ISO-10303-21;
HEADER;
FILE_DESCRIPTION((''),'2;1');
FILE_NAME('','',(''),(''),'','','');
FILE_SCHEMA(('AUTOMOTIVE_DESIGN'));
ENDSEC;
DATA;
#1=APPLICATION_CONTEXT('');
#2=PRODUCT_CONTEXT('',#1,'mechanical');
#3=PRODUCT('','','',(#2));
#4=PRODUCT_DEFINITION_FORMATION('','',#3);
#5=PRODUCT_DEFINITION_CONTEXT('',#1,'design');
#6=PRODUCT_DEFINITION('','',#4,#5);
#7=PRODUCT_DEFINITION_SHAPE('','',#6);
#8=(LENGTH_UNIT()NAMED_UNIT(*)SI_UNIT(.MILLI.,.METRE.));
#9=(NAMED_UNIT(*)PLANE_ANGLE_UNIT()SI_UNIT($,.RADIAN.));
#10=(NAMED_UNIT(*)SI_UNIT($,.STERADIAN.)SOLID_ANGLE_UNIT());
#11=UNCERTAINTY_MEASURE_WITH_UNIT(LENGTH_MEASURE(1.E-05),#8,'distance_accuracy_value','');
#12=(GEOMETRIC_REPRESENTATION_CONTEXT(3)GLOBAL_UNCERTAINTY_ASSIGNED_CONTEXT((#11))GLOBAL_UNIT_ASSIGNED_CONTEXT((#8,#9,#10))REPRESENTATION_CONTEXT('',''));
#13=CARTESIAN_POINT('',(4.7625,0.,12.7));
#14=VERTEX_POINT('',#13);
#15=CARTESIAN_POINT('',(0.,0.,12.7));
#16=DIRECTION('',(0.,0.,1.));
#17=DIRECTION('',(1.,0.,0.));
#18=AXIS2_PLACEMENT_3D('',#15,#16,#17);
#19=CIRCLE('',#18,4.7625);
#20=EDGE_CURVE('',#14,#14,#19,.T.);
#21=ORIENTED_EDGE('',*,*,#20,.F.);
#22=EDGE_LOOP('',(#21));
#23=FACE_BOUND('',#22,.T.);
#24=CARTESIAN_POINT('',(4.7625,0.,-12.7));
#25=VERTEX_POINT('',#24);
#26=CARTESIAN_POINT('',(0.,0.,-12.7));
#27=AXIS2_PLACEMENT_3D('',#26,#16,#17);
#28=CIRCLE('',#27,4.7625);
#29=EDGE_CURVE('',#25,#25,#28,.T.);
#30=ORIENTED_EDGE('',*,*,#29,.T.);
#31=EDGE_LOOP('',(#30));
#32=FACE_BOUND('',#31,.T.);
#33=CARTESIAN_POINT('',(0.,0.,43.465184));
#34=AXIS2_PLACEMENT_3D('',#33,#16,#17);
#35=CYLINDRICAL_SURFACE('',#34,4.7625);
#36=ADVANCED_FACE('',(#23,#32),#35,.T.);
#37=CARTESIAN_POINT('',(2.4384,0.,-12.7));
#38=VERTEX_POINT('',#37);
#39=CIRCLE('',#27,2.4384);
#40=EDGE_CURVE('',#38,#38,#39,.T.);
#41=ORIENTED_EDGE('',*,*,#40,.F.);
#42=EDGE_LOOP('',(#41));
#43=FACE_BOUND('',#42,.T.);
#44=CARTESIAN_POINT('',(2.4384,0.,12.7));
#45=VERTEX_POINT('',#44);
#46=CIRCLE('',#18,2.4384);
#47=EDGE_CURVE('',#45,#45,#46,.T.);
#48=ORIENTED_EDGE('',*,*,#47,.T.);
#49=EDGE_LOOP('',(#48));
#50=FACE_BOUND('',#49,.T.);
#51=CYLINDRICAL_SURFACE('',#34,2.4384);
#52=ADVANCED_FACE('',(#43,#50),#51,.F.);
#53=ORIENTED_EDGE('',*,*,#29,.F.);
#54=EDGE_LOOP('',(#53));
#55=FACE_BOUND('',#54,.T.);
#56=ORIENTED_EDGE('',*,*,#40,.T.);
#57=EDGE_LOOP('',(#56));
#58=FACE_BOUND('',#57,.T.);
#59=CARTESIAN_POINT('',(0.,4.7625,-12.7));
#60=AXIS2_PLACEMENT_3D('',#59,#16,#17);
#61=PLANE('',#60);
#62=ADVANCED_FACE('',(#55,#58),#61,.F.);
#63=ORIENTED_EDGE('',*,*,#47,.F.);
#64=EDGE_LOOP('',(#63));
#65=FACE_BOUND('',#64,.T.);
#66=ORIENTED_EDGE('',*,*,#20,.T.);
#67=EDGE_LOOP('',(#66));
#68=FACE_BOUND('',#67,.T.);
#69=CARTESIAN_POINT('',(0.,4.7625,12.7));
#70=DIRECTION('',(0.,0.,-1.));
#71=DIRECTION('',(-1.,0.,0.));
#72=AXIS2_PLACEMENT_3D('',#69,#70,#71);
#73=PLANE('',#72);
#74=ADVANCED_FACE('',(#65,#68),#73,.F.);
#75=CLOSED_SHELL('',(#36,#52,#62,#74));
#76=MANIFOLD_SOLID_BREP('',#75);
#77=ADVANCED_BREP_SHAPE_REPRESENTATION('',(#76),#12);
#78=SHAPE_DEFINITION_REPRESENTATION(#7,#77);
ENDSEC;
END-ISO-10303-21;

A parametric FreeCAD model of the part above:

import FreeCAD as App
import Part
import Sketcher
Q = App.Units.Quantity

doc = App.newDocument("Part")
body = doc.addObject("PartDesign::Body", "Body")

sketch1 = doc.addObject("Sketcher::SketchObject", "Sketch")
body.addObject(sketch1)
sketch1.AttachmentSupport = (doc.YZ_Plane, [""])
sketch1.MapMode = "FlatFace"
sketch1.addGeometry([
    Part.LineSegment(App.Vector(4.7625, 12.7, 0), App.Vector(2.4384, 12.7, 0)),
    Part.LineSegment(App.Vector(2.4384, 12.7, 0), App.Vector(2.4384, -12.7, 0)),
    Part.LineSegment(App.Vector(2.4384, -12.7, 0), App.Vector(4.7625, -12.7, 0)),
    Part.LineSegment(App.Vector(4.7625, -12.7, 0), App.Vector(4.7625, 12.7, 0)),
], False)
sketch1.addConstraint([
    Sketcher.Constraint("Coincident", 0, 2, 1, 1),
    Sketcher.Constraint("Coincident", 1, 2, 2, 1),
    Sketcher.Constraint("Coincident", 2, 2, 3, 1),
    Sketcher.Constraint("Coincident", 3, 2, 0, 1),
    Sketcher.Constraint("Horizontal", 0),
    Sketcher.Constraint("Vertical", 1),
    Sketcher.Constraint("Horizontal", 2),
    Sketcher.Constraint("Vertical", 3),
    Sketcher.Constraint("DistanceY", 1, 2, 1, 1, Q("1 in")),
    Sketcher.Constraint("DistanceY", -1, 1, 0, 2, Q("0.5 in")),
    Sketcher.Constraint("DistanceX", 0, 2, 0, 1, Q("0.0915 in")),
    Sketcher.Constraint("DistanceX", -1, 1, 0, 2, Q("0.096 in")),
])
revolution = doc.addObject("PartDesign::Revolution", "Revolution")
body.addObject(revolution)
revolution.Profile = sketch1
revolution.ReferenceAxis = (sketch1, ["V_Axis"])
revolution.Angle = 360

doc.recompute()
